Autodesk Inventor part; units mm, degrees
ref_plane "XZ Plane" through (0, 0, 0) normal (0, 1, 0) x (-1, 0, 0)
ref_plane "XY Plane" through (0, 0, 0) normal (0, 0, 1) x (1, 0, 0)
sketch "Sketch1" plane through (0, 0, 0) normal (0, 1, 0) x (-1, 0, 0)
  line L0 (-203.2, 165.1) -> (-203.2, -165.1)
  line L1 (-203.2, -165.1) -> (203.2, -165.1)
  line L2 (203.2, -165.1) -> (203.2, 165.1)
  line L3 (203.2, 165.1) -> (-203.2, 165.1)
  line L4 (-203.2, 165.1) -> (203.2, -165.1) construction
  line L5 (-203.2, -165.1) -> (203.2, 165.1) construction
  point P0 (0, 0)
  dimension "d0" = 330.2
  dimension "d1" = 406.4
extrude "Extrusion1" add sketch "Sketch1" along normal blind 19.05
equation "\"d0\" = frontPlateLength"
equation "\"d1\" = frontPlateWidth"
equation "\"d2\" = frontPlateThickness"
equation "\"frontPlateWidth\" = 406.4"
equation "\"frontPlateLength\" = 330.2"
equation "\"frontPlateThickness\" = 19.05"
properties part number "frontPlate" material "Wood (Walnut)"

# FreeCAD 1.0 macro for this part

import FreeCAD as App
import Part
import Sketcher
Q = App.Units.Quantity

doc = App.newDocument("Part")
body = doc.addObject("PartDesign::Body", "Body")

sketch1 = doc.addObject("Sketcher::SketchObject", "Sketch")
body.addObject(sketch1)
sketch1.AttachmentSupport = (doc.XZ_Plane, [""])
sketch1.MapMode = "FlatFace"
sketch1.addGeometry(Part.LineSegment(App.Vector(-203.2, 165.1, 0), App.Vector(203.2, 165.1, 0)), False)
sketch1.addGeometry(Part.LineSegment(App.Vector(203.2, 165.1, 0), App.Vector(203.2, -165.1, 0)), False)
sketch1.addGeometry(Part.LineSegment(App.Vector(203.2, -165.1, 0), App.Vector(-203.2, -165.1, 0)), False)
sketch1.addGeometry(Part.LineSegment(App.Vector(-203.2, -165.1, 0), App.Vector(-203.2, 165.1, 0)), False)
sketch1.addConstraint(Sketcher.Constraint("Coincident", 0, 2, 1, 1))
sketch1.addConstraint(Sketcher.Constraint("Coincident", 1, 2, 2, 1))
sketch1.addConstraint(Sketcher.Constraint("Coincident", 2, 2, 3, 1))
sketch1.addConstraint(Sketcher.Constraint("Coincident", 3, 2, 0, 1))
sketch1.addConstraint(Sketcher.Constraint("Horizontal", 0))
sketch1.addConstraint(Sketcher.Constraint("Vertical", 1))
sketch1.addConstraint(Sketcher.Constraint("Horizontal", 2))
sketch1.addConstraint(Sketcher.Constraint("Vertical", 3))
sketch1.addConstraint(Sketcher.Constraint("Symmetric", 0, 2, 2, 2, -1, 1))
sketch1.addConstraint(Sketcher.Constraint("DistanceX", 0, 1, 0, 2, Q("16 in")))
sketch1.addConstraint(Sketcher.Constraint("DistanceY", 1, 2, 1, 1, Q("13 in")))
pad1 = doc.addObject("PartDesign::Pad", "Pad")
body.addObject(pad1)
pad1.Profile = sketch1
pad1.Length = Q("0.75 in")
pad1.Reversed = True

doc.recompute()
